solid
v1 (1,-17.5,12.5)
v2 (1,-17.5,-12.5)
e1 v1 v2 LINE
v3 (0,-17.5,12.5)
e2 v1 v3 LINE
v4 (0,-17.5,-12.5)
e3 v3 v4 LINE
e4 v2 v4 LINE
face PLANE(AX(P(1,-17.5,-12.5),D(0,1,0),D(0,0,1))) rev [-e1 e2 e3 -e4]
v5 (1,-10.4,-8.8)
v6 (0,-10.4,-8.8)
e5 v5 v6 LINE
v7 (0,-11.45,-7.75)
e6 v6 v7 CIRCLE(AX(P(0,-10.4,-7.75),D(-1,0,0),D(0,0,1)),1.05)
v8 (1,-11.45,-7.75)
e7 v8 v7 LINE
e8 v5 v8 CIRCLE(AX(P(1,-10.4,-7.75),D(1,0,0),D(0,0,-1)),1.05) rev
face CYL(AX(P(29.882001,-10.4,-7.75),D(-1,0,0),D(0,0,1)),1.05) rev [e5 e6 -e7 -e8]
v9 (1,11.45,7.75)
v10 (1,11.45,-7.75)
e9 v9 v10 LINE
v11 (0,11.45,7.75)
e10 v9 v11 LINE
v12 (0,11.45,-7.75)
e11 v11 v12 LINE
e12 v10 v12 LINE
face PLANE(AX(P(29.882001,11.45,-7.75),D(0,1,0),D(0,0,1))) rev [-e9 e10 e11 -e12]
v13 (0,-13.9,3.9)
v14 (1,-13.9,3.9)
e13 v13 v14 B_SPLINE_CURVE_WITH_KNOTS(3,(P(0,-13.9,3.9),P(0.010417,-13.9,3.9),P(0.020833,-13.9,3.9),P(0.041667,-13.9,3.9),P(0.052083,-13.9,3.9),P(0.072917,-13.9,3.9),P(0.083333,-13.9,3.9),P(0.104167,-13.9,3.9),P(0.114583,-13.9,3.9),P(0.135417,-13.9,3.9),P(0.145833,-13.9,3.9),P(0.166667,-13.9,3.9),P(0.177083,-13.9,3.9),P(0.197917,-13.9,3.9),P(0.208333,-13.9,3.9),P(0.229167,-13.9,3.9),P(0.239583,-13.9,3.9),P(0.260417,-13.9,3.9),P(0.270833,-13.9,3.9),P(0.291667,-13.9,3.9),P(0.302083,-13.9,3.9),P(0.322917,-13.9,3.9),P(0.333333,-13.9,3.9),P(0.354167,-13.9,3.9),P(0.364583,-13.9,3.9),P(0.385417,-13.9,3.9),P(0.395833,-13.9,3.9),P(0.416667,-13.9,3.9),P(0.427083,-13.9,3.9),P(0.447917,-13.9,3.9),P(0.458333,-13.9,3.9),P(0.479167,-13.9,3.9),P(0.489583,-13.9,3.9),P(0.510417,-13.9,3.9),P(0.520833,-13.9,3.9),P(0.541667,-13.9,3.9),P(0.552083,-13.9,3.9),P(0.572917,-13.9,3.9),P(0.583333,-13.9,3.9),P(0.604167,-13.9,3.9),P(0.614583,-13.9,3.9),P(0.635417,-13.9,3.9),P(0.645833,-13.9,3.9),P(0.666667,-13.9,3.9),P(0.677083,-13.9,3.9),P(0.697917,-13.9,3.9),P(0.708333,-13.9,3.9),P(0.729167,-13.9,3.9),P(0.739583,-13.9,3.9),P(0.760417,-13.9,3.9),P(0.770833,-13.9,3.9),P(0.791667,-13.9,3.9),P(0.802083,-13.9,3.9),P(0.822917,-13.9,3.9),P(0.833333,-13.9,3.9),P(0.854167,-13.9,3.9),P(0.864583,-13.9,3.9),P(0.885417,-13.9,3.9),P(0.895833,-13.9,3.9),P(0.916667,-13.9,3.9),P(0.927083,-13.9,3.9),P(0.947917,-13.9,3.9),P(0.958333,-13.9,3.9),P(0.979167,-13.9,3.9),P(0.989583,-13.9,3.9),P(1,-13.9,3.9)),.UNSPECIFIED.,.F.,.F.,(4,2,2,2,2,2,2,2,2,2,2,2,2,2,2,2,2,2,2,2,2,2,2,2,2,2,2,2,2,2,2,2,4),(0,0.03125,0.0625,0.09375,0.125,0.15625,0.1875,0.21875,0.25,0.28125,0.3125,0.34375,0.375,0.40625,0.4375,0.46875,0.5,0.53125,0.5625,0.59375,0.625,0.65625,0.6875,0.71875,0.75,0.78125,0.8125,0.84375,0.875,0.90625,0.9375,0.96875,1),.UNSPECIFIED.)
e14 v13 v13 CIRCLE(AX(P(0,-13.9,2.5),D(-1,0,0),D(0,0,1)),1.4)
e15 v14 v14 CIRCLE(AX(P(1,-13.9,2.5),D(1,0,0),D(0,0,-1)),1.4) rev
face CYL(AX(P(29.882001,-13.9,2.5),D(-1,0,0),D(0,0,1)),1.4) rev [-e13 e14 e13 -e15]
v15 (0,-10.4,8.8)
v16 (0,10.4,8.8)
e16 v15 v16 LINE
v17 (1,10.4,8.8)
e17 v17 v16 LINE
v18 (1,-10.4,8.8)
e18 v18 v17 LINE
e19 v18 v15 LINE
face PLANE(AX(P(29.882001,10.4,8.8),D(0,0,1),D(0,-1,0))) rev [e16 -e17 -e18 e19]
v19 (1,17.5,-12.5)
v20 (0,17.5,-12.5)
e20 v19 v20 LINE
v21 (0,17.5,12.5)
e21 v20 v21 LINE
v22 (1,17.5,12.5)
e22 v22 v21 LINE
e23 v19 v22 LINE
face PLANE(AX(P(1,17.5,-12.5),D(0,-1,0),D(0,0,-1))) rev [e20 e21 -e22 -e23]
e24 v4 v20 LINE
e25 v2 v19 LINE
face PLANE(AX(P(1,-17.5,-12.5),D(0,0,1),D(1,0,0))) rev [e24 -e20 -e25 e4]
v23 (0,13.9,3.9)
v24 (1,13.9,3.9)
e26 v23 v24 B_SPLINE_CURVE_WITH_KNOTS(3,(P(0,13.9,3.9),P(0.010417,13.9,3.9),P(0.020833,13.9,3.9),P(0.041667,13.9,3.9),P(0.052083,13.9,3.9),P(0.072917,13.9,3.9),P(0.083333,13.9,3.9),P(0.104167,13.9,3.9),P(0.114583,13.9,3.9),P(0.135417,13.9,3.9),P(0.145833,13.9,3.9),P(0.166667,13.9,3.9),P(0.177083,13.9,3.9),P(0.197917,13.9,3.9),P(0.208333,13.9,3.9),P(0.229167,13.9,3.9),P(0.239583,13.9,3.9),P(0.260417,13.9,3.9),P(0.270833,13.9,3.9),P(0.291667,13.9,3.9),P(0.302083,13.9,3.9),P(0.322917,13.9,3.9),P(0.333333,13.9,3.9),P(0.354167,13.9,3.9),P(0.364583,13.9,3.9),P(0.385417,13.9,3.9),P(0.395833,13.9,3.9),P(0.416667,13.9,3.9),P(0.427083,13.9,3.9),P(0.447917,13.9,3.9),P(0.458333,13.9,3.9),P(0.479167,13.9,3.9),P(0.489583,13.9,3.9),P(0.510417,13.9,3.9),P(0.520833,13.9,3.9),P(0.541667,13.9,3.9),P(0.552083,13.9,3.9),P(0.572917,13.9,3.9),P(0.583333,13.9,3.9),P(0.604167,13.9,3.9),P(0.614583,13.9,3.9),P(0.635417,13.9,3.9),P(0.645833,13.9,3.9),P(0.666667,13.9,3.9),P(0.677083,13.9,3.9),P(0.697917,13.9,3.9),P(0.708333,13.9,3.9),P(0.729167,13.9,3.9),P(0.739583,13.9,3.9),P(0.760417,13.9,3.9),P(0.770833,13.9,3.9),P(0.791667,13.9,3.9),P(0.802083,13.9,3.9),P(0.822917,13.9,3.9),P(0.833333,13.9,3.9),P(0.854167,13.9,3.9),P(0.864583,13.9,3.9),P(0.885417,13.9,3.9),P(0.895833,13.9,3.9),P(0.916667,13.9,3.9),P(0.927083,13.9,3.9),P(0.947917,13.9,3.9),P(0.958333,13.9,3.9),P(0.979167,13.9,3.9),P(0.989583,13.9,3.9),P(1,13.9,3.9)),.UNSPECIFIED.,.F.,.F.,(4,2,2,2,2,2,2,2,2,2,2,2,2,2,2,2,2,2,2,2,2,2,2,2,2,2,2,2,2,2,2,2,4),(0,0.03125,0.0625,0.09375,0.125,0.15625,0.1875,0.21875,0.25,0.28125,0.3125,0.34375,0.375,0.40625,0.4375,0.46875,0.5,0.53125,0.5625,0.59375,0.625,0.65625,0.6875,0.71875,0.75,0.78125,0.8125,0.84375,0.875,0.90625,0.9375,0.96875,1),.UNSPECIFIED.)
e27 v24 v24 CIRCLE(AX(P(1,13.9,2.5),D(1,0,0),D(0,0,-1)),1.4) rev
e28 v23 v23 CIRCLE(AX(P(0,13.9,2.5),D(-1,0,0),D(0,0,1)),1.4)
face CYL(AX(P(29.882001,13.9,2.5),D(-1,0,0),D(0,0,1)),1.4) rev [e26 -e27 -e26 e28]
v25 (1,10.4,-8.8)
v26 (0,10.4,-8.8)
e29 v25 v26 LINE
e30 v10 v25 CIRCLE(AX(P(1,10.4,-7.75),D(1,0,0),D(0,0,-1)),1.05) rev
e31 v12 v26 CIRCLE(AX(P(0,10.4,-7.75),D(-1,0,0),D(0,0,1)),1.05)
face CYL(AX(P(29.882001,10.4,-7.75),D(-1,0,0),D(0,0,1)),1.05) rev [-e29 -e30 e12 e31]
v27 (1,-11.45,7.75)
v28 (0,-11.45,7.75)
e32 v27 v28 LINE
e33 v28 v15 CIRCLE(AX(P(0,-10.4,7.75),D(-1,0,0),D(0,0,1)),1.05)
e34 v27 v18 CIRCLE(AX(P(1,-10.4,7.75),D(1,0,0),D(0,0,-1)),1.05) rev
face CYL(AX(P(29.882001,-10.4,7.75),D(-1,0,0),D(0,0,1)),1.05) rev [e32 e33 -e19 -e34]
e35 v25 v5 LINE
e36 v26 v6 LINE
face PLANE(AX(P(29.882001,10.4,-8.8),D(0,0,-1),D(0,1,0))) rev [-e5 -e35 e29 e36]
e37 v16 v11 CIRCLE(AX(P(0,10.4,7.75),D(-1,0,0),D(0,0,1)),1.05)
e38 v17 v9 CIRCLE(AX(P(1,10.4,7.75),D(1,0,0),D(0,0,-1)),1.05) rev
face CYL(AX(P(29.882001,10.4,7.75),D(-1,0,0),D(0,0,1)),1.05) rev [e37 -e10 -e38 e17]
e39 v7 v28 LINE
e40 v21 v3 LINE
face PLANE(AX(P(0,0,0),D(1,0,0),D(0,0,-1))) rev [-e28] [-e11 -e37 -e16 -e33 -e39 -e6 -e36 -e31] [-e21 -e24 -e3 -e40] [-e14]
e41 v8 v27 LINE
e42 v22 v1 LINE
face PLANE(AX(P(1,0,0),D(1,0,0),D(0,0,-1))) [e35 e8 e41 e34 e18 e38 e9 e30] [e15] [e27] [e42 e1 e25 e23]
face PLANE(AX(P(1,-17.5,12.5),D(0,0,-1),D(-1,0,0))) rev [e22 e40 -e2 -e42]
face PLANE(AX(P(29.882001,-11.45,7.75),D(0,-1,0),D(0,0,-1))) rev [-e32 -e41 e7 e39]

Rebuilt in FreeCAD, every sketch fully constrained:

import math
import FreeCAD as App
import Part
import Sketcher

V = App.Vector


def add_polygon(sketch, points):
    """Adds a closed chain of lines whose ends are joined by coincident constraints."""
    first, n = sketch.GeometryCount, len(points)
    for a, b in zip(points, points[1:] + points[:1]):
        sketch.addGeometry(Part.LineSegment(App.Vector(*a, 0), App.Vector(*b, 0)), False)
    for i in range(n):
        sketch.addConstraint(Sketcher.Constraint("Coincident", first + i, 2, first + (i + 1) % n, 1))

doc = App.newDocument("Part")
body = doc.addObject("PartDesign::Body", "Body")

sketch1 = doc.addObject("Sketcher::SketchObject", "Sketch")
body.addObject(sketch1)
sketch1.AttachmentSupport = (doc.YZ_Plane, [""])
sketch1.MapMode = "FlatFace"
add_polygon(sketch1, [(17.5, 12.5), (-17.5, 12.5), (-17.5, -12.5), (17.5, -12.5)])
sketch1.addConstraint([
    Sketcher.Constraint("Horizontal", 0),
    Sketcher.Constraint("Vertical", 1),
    Sketcher.Constraint("Horizontal", 2),
    Sketcher.Constraint("Vertical", 3),
    Sketcher.Constraint("Symmetric", 0, 2, 2, 2, -1, 1),
    Sketcher.Constraint("DistanceX", 0, 2, 0, 1, 35.0),
    Sketcher.Constraint("DistanceY", 1, 2, 1, 1, 25.0),
])
pad1 = doc.addObject("PartDesign::Pad", "Pad")
body.addObject(pad1)
pad1.Profile = sketch1
pad1.Length = 1

sketch2 = doc.addObject("Sketcher::SketchObject", "Sketch001")
body.addObject(sketch2)
sketch2.AttachmentSupport = (doc.YZ_Plane, [""])
sketch2.MapMode = "FlatFace"
sketch2.addGeometry([
    Part.Circle(V(13.9, 2.5, 0), V(0, 0, 1), 1.4),
    Part.Circle(V(-13.9, 2.5, 0), V(0, 0, 1), 1.4),
    Part.LineSegment(V(10.4, -8.8, 0), V(-10.4, -8.8, 0)),
    Part.ArcOfCircle(Part.Circle(V(-10.4, -7.75, 0), V(0, 0, 1), 1.05), math.radians(-180), math.radians(-90)),
    Part.LineSegment(V(-11.45, -7.75, 0), V(-11.45, 7.75, 0)),
    Part.ArcOfCircle(Part.Circle(V(-10.4, 7.75, 0), V(0, 0, 1), 1.05), math.radians(90), math.radians(180)),
    Part.LineSegment(V(-10.4, 8.8, 0), V(10.4, 8.8, 0)),
    Part.ArcOfCircle(Part.Circle(V(10.4, 7.75, 0), V(0, 0, 1), 1.05), math.radians(0), math.radians(90)),
    Part.LineSegment(V(11.45, 7.75, 0), V(11.45, -7.75, 0)),
    Part.ArcOfCircle(Part.Circle(V(10.4, -7.75, 0), V(0, 0, 1), 1.05), math.radians(-90), math.radians(0)),
], False)
sketch2.addConstraint([
    Sketcher.Constraint("Tangent", 2, 2, 3, 2),
    Sketcher.Constraint("Tangent", 3, 1, 4, 1),
    Sketcher.Constraint("Tangent", 4, 2, 5, 2),
    Sketcher.Constraint("Tangent", 5, 1, 6, 1),
    Sketcher.Constraint("Tangent", 6, 2, 7, 2),
    Sketcher.Constraint("Tangent", 7, 1, 8, 1),
    Sketcher.Constraint("Tangent", 8, 2, 9, 2),
    Sketcher.Constraint("Tangent", 9, 1, 2, 1),
    Sketcher.Constraint("Horizontal", 2),
    Sketcher.Constraint("Vertical", 4),
    Sketcher.Constraint("Horizontal", 6),
    Sketcher.Constraint("Vertical", 8),
    Sketcher.Constraint("Equal", 0, 1),
    Sketcher.Constraint("Equal", 3, 5),
    Sketcher.Constraint("Equal", 5, 7),
    Sketcher.Constraint("Equal", 7, 9),
    Sketcher.Constraint("Symmetric", 3, 3, 7, 3, -1, 1),
    Sketcher.Constraint("Symmetric", 0, 3, 1, 3, -2),
    Sketcher.Constraint("Diameter", 0, 2.8),
    Sketcher.Constraint("Radius", 3, 1.05),
    Sketcher.Constraint("DistanceX", 2, 2, 2, 1, 20.8),
    Sketcher.Constraint("DistanceY", 4, 1, 4, 2, 15.5),
    Sketcher.Constraint("DistanceX", -1, 1, 0, 3, 13.9),
    Sketcher.Constraint("DistanceY", -1, 1, 0, 3, 2.5),
])
pocket1 = doc.addObject("PartDesign::Pocket", "Pocket")
body.addObject(pocket1)
pocket1.Profile = sketch2
pocket1.Length = 1
pocket1.Reversed = True

doc.recompute()
